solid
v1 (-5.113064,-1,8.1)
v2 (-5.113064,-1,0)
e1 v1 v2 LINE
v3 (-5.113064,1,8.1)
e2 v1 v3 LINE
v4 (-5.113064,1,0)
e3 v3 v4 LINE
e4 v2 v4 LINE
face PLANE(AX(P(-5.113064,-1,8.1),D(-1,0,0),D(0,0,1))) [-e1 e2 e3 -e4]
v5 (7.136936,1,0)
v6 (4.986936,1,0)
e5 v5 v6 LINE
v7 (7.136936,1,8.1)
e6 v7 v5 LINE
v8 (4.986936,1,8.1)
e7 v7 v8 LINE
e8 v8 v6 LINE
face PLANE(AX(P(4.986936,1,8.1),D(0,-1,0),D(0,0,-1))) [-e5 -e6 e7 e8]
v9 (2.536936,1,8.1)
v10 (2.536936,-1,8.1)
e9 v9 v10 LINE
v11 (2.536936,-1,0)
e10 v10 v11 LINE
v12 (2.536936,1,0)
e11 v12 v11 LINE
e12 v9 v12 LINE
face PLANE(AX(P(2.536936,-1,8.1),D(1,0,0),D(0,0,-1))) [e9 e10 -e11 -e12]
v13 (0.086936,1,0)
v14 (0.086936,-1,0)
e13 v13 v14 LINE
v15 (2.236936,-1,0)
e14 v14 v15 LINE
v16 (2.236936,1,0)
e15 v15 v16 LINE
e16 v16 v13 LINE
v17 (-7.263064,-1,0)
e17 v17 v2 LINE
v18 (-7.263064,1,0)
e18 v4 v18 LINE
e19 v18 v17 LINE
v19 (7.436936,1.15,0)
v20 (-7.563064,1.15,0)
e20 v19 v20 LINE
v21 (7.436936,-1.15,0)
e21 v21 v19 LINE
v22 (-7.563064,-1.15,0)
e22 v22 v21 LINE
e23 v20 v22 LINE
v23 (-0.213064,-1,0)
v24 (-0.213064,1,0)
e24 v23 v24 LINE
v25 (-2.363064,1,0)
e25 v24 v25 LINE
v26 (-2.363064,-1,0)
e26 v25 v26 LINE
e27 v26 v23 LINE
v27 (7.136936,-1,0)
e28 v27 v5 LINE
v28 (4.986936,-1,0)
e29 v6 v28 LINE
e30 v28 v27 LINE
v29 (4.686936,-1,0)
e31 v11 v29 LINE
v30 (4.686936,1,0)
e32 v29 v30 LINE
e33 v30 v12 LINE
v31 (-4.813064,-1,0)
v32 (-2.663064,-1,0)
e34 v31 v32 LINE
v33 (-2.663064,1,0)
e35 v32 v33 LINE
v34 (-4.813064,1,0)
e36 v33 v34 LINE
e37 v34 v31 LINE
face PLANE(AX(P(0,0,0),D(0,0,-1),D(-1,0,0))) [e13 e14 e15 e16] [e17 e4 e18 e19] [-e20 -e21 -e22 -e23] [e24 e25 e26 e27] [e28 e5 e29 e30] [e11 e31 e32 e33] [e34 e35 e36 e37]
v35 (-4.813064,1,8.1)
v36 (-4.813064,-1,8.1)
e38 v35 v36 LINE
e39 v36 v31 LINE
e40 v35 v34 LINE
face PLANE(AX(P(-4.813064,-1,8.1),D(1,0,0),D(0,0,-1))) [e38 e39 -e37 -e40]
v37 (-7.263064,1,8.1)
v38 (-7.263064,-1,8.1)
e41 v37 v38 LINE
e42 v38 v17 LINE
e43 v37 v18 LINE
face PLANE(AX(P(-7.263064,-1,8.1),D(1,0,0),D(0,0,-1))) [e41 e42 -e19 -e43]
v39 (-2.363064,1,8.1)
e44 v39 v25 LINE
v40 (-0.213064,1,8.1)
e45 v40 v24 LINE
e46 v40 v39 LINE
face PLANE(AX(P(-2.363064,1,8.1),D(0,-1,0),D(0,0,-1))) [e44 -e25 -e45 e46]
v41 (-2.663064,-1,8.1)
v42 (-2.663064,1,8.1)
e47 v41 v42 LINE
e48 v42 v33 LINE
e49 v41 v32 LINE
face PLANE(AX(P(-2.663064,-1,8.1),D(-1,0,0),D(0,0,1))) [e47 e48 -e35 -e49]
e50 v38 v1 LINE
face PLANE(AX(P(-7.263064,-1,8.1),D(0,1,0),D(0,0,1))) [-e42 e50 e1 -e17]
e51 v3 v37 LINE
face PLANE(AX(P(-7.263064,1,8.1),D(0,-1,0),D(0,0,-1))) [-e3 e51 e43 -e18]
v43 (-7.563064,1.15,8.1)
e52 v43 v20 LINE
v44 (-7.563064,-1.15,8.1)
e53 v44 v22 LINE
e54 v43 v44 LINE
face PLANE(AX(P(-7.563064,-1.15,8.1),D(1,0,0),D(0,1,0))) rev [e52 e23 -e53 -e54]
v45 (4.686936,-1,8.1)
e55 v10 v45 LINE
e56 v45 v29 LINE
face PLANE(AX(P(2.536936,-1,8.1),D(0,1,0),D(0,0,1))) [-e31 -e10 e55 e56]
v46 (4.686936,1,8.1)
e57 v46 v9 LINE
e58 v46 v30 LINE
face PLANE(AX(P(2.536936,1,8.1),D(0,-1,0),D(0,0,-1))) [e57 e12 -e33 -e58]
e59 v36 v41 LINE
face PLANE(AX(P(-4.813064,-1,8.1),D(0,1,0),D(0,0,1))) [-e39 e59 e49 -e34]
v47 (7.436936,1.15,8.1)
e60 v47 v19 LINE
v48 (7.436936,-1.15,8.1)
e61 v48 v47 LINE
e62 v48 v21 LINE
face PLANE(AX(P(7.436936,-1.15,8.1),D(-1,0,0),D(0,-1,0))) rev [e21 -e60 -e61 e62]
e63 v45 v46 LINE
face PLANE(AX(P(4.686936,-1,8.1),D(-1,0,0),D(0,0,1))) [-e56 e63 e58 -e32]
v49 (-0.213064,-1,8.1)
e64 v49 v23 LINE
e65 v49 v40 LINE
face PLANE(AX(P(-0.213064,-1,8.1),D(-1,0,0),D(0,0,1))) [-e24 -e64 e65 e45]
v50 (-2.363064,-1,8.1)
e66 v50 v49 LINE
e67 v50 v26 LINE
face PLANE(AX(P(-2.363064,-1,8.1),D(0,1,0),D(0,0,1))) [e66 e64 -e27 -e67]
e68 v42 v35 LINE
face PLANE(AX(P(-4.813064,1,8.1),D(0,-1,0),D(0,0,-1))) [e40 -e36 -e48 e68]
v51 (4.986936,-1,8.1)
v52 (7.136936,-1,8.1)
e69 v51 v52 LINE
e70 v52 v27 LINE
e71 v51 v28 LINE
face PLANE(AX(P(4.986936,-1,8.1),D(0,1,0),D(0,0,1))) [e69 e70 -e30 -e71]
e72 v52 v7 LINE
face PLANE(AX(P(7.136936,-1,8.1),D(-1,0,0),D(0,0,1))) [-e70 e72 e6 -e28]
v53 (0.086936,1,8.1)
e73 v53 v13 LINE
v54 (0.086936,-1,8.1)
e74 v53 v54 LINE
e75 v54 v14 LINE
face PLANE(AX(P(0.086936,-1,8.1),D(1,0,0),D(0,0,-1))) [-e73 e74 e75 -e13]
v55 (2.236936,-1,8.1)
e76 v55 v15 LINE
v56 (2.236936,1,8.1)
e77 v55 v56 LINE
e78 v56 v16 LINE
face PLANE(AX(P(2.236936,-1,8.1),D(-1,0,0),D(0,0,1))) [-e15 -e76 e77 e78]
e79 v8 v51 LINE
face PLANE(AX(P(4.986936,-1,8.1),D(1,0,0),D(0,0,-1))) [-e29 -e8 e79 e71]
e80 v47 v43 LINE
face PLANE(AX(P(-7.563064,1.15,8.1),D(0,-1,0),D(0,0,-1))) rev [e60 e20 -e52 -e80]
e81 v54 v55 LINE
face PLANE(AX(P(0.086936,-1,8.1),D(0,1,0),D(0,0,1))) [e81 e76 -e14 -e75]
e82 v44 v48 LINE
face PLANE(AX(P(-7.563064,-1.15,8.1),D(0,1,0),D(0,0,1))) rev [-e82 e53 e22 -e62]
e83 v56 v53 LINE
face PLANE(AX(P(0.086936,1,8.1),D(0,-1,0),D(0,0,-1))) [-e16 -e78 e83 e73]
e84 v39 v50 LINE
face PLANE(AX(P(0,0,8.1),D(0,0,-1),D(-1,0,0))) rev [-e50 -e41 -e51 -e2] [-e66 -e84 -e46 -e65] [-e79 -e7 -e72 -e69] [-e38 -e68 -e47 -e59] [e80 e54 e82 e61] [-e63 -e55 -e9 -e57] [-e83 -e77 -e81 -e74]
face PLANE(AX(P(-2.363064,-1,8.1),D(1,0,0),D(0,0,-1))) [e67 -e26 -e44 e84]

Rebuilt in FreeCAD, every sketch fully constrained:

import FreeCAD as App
import Part
import Sketcher

doc = App.newDocument("Part")
body = doc.addObject("PartDesign::Body", "Body")

sketch1 = body.newObject("Sketcher::SketchObject", "Sketch")
sketch1.AttachmentSupport = (doc.getObject("XY_Plane"), [""])
sketch1.MapMode = "FlatFace"
sketch1.addGeometry(Part.LineSegment(App.Vector(-7.6, 1.1, 0), App.Vector(-7.6, -1.1, 0)), False)
sketch1.addGeometry(Part.LineSegment(App.Vector(-7.6, -1.1, 0), App.Vector(7.4, -1.1, 0)), False)
sketch1.addGeometry(Part.LineSegment(App.Vector(7.4, -1.1, 0), App.Vector(7.4, 1.1, 0)), False)
sketch1.addGeometry(Part.LineSegment(App.Vector(7.4, 1.1, 0), App.Vector(-7.6, 1.1, 0)), False)
sketch1.addGeometry(Part.LineSegment(App.Vector(-5.1, -1, 0), App.Vector(-7.3, -1, 0)), False)
sketch1.addGeometry(Part.LineSegment(App.Vector(-7.3, -1, 0), App.Vector(-7.3, 1, 0)), False)
sketch1.addGeometry(Part.LineSegment(App.Vector(-7.3, 1, 0), App.Vector(-5.1, 1, 0)), False)
sketch1.addGeometry(Part.LineSegment(App.Vector(-5.1, 1, 0), App.Vector(-5.1, -1, 0)), False)
sketch1.addGeometry(Part.LineSegment(App.Vector(-2.7, -1, 0), App.Vector(-4.8, -1, 0)), False)
sketch1.addGeometry(Part.LineSegment(App.Vector(-4.8, -1, 0), App.Vector(-4.8, 1, 0)), False)
sketch1.addGeometry(Part.LineSegment(App.Vector(-4.8, 1, 0), App.Vector(-2.7, 1, 0)), False)
sketch1.addGeometry(Part.LineSegment(App.Vector(-2.7, 1, 0), App.Vector(-2.7, -1, 0)), False)
sketch1.addGeometry(Part.LineSegment(App.Vector(-0.2, -1, 0), App.Vector(-2.4, -1, 0)), False)
sketch1.addGeometry(Part.LineSegment(App.Vector(-2.4, -1, 0), App.Vector(-2.4, 1, 0)), False)
sketch1.addGeometry(Part.LineSegment(App.Vector(-2.4, 1, 0), App.Vector(-0.2, 1, 0)), False)
sketch1.addGeometry(Part.LineSegment(App.Vector(-0.2, 1, 0), App.Vector(-0.2, -1, 0)), False)
sketch1.addGeometry(Part.LineSegment(App.Vector(2.2, -1, 0), App.Vector(0.1, -1, 0)), False)
sketch1.addGeometry(Part.LineSegment(App.Vector(0.1, -1, 0), App.Vector(0.1, 1, 0)), False)
sketch1.addGeometry(Part.LineSegment(App.Vector(0.1, 1, 0), App.Vector(2.2, 1, 0)), False)
sketch1.addGeometry(Part.LineSegment(App.Vector(2.2, 1, 0), App.Vector(2.2, -1, 0)), False)
sketch1.addGeometry(Part.LineSegment(App.Vector(4.7, -1, 0), App.Vector(2.5, -1, 0)), False)
sketch1.addGeometry(Part.LineSegment(App.Vector(2.5, -1, 0), App.Vector(2.5, 1, 0)), False)
sketch1.addGeometry(Part.LineSegment(App.Vector(2.5, 1, 0), App.Vector(4.7, 1, 0)), False)
sketch1.addGeometry(Part.LineSegment(App.Vector(4.7, 1, 0), App.Vector(4.7, -1, 0)), False)
sketch1.addGeometry(Part.LineSegment(App.Vector(7.1, -1, 0), App.Vector(5, -1, 0)), False)
sketch1.addGeometry(Part.LineSegment(App.Vector(5, -1, 0), App.Vector(5, 1, 0)), False)
sketch1.addGeometry(Part.LineSegment(App.Vector(5, 1, 0), App.Vector(7.1, 1, 0)), False)
sketch1.addGeometry(Part.LineSegment(App.Vector(7.1, 1, 0), App.Vector(7.1, -1, 0)), False)
sketch1.addConstraint(Sketcher.Constraint("Coincident", 0, 2, 1, 1))
sketch1.addConstraint(Sketcher.Constraint("Coincident", 1, 2, 2, 1))
sketch1.addConstraint(Sketcher.Constraint("Coincident", 2, 2, 3, 1))
sketch1.addConstraint(Sketcher.Constraint("Coincident", 3, 2, 0, 1))
sketch1.addConstraint(Sketcher.Constraint("Coincident", 4, 2, 5, 1))
sketch1.addConstraint(Sketcher.Constraint("Coincident", 5, 2, 6, 1))
sketch1.addConstraint(Sketcher.Constraint("Coincident", 6, 2, 7, 1))
sketch1.addConstraint(Sketcher.Constraint("Coincident", 7, 2, 4, 1))
sketch1.addConstraint(Sketcher.Constraint("Coincident", 8, 2, 9, 1))
sketch1.addConstraint(Sketcher.Constraint("Coincident", 9, 2, 10, 1))
sketch1.addConstraint(Sketcher.Constraint("Coincident", 10, 2, 11, 1))
sketch1.addConstraint(Sketcher.Constraint("Coincident", 11, 2, 8, 1))
sketch1.addConstraint(Sketcher.Constraint("Coincident", 12, 2, 13, 1))
sketch1.addConstraint(Sketcher.Constraint("Coincident", 13, 2, 14, 1))
sketch1.addConstraint(Sketcher.Constraint("Coincident", 14, 2, 15, 1))
sketch1.addConstraint(Sketcher.Constraint("Coincident", 15, 2, 12, 1))
sketch1.addConstraint(Sketcher.Constraint("Coincident", 16, 2, 17, 1))
sketch1.addConstraint(Sketcher.Constraint("Coincident", 17, 2, 18, 1))
sketch1.addConstraint(Sketcher.Constraint("Coincident", 18, 2, 19, 1))
sketch1.addConstraint(Sketcher.Constraint("Coincident", 19, 2, 16, 1))
sketch1.addConstraint(Sketcher.Constraint("Coincident", 20, 2, 21, 1))
sketch1.addConstraint(Sketcher.Constraint("Coincident", 21, 2, 22, 1))
sketch1.addConstraint(Sketcher.Constraint("Coincident", 22, 2, 23, 1))
sketch1.addConstraint(Sketcher.Constraint("Coincident", 23, 2, 20, 1))
sketch1.addConstraint(Sketcher.Constraint("Coincident", 24, 2, 25, 1))
sketch1.addConstraint(Sketcher.Constraint("Coincident", 25, 2, 26, 1))
sketch1.addConstraint(Sketcher.Constraint("Coincident", 26, 2, 27, 1))
sketch1.addConstraint(Sketcher.Constraint("Coincident", 27, 2, 24, 1))
sketch1.addConstraint(Sketcher.Constraint("Vertical", 0))
sketch1.addConstraint(Sketcher.Constraint("Horizontal", 1))
sketch1.addConstraint(Sketcher.Constraint("Vertical", 2))
sketch1.addConstraint(Sketcher.Constraint("Horizontal", 3))
sketch1.addConstraint(Sketcher.Constraint("Horizontal", 4))
sketch1.addConstraint(Sketcher.Constraint("Vertical", 5))
sketch1.addConstraint(Sketcher.Constraint("Horizontal", 6))
sketch1.addConstraint(Sketcher.Constraint("Vertical", 7))
sketch1.addConstraint(Sketcher.Constraint("Horizontal", 8))
sketch1.addConstraint(Sketcher.Constraint("Vertical", 9))
sketch1.addConstraint(Sketcher.Constraint("Horizontal", 10))
sketch1.addConstraint(Sketcher.Constraint("Vertical", 11))
sketch1.addConstraint(Sketcher.Constraint("Horizontal", 12))
sketch1.addConstraint(Sketcher.Constraint("Vertical", 13))
sketch1.addConstraint(Sketcher.Constraint("Horizontal", 14))
sketch1.addConstraint(Sketcher.Constraint("Vertical", 15))
sketch1.addConstraint(Sketcher.Constraint("Horizontal", 16))
sketch1.addConstraint(Sketcher.Constraint("Vertical", 17))
sketch1.addConstraint(Sketcher.Constraint("Horizontal", 18))
sketch1.addConstraint(Sketcher.Constraint("Vertical", 19))
sketch1.addConstraint(Sketcher.Constraint("Horizontal", 20))
sketch1.addConstraint(Sketcher.Constraint("Vertical", 21))
sketch1.addConstraint(Sketcher.Constraint("Horizontal", 22))
sketch1.addConstraint(Sketcher.Constraint("Vertical", 23))
sketch1.addConstraint(Sketcher.Constraint("Horizontal", 24))
sketch1.addConstraint(Sketcher.Constraint("Vertical", 25))
sketch1.addConstraint(Sketcher.Constraint("Horizontal", 26))
sketch1.addConstraint(Sketcher.Constraint("Vertical", 27))
sketch1.addConstraint(Sketcher.Constraint("Horizontal", 7, 2, 8, 2))
sketch1.addConstraint(Sketcher.Constraint("Horizontal", 6, 2, 9, 2))
sketch1.addConstraint(Sketcher.Constraint("Horizontal", 11, 2, 12, 2))
sketch1.addConstraint(Sketcher.Constraint("Horizontal", 10, 2, 13, 2))
sketch1.addConstraint(Sketcher.Constraint("Horizontal", 15, 2, 16, 2))
sketch1.addConstraint(Sketcher.Constraint("Horizontal", 14, 2, 17, 2))
sketch1.addConstraint(Sketcher.Constraint("Horizontal", 19, 2, 20, 2))
sketch1.addConstraint(Sketcher.Constraint("Horizontal", 18, 2, 21, 2))
sketch1.addConstraint(Sketcher.Constraint("Horizontal", 23, 2, 24, 2))
sketch1.addConstraint(Sketcher.Constraint("Horizontal", 22, 2, 25, 2))
sketch1.addConstraint(Sketcher.Constraint("Equal", 6, 8))
sketch1.addConstraint(Sketcher.Constraint("Equal", 10, 12))
sketch1.addConstraint(Sketcher.Constraint("Equal", 14, 16))
sketch1.addConstraint(Sketcher.Constraint("Equal", 18, 20))
sketch1.addConstraint(Sketcher.Constraint("Equal", 22, 24))
sketch1.addConstraint(Sketcher.Constraint("DistanceX", 1, 1, 1, 2, 15.0))
sketch1.addConstraint(Sketcher.Constraint("DistanceY", 5, 1, 5, 2, 2.0))
sketch1.addConstraint(Sketcher.Constraint("DistanceY", 0, 2, 0, 1, 2.3))
sketch1.addConstraint(Sketcher.Constraint("DistanceY", 4, 2, -1, 1, 1.0))
sketch1.addConstraint(Sketcher.Constraint("DistanceX", 4, 2, 4, 1, 2.15))
sketch1.addConstraint(Sketcher.Constraint("DistanceX", 0, 2, 4, 2, 0.3))
sketch1.addConstraint(Sketcher.Constraint("DistanceX", 7, 2, 8, 2, 0.3))
sketch1.addConstraint(Sketcher.Constraint("DistanceX", 11, 2, 12, 2, 0.3))
sketch1.addConstraint(Sketcher.Constraint("DistanceX", 15, 2, 16, 2, 0.3))
sketch1.addConstraint(Sketcher.Constraint("DistanceX", 19, 2, 20, 2, 0.3))
sketch1.addConstraint(Sketcher.Constraint("DistanceX", 23, 2, 24, 2, 0.3))
sketch1.addConstraint(Sketcher.Constraint("DistanceY", 0, 2, -1, 1, 1.15))
sketch1.addConstraint(Sketcher.Constraint("DistanceX", 0, 2, -1, 1, 7.563064))
pad1 = body.newObject("PartDesign::Pad", "Pad")
pad1.Profile = sketch1
pad1.Length = 8.1

doc.recompute()
